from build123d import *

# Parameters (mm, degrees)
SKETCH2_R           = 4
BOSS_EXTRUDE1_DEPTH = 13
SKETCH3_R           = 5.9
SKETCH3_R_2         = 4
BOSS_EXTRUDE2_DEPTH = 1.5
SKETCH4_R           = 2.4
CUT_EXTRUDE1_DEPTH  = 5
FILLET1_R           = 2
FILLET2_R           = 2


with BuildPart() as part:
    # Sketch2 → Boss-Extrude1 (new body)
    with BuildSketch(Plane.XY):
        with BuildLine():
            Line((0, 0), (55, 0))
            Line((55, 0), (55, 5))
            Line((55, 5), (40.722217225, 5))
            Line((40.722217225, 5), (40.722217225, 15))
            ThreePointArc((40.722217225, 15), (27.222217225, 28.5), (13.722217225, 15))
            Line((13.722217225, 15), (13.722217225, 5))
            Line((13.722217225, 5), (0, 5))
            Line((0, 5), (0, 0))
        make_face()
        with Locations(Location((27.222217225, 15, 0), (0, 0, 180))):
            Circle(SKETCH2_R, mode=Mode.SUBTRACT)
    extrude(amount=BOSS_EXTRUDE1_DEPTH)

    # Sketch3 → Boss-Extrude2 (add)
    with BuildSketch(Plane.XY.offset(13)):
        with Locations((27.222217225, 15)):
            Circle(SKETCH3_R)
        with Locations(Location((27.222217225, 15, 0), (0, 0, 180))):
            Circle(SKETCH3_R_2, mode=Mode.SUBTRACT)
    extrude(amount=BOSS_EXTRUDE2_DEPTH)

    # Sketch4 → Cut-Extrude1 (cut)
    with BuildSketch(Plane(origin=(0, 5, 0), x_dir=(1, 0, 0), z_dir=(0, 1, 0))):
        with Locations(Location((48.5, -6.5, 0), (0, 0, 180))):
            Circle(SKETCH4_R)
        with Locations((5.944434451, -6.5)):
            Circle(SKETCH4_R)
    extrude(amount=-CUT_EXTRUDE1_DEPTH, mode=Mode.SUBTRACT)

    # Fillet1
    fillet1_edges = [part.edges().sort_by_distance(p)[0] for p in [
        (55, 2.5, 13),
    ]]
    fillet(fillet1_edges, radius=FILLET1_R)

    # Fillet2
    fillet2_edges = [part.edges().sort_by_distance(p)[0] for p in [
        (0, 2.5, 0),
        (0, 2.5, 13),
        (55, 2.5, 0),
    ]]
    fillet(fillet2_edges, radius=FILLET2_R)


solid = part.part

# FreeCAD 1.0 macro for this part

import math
import FreeCAD as App
import Part
import Sketcher


def edges_at(feature, points):
    """Names of the edges that pass closest to the given points."""
    edges = feature.Shape.Edges
    near = lambda p: min(range(len(edges)), key=lambda i: edges[i].distToShape(Part.Vertex(*p))[0])
    return sorted({f"Edge{near(p) + 1}" for p in points})

doc = App.newDocument("Part")
body = doc.addObject("PartDesign::Body", "Body")

# Sketch on XY plane
sketch1 = doc.addObject("Sketcher::SketchObject", "Sketch")
body.addObject(sketch1)
sketch1.AttachmentSupport = (doc.XY_Plane, [""])
sketch1.MapMode = "FlatFace"
sketch1.addGeometry([
    Part.LineSegment(App.Vector(0, 0, 0), App.Vector(55, 0, 0)),  # 0
    Part.LineSegment(App.Vector(55, 0, 0), App.Vector(55, 5, 0)),  # 1
    Part.LineSegment(App.Vector(55, 5, 0), App.Vector(40.7, 5, 0)),  # 2
    Part.LineSegment(App.Vector(40.7, 5, 0), App.Vector(40.7, 15, 0)),  # 3
    Part.ArcOfCircle(Part.Circle(App.Vector(27.2, 15, 0), App.Vector(0, 0, 1), 13.5), math.radians(0), math.radians(180)),  # 4
    Part.LineSegment(App.Vector(13.7, 15, 0), App.Vector(13.7, 5, 0)),  # 5
    Part.LineSegment(App.Vector(13.7, 5, 0), App.Vector(0, 5, 0)),  # 6
    Part.LineSegment(App.Vector(0, 5, 0), App.Vector(0, 0, 0)),  # 7
    Part.Circle(App.Vector(27.2, 15, 0), App.Vector(0, 0, 1), 4),  # 8
], False)
sketch1.addConstraint([
    Sketcher.Constraint("Coincident", 0, 2, 1, 1),
    Sketcher.Constraint("Coincident", 1, 2, 2, 1),
    Sketcher.Constraint("Coincident", 2, 2, 3, 1),
    Sketcher.Constraint("Tangent", 3, 2, 4, 1),
    Sketcher.Constraint("Tangent", 4, 2, 5, 1),
    Sketcher.Constraint("Coincident", 5, 2, 6, 1),
    Sketcher.Constraint("Coincident", 6, 2, 7, 1),
    Sketcher.Constraint("Coincident", 7, 2, 0, 1),
    Sketcher.Constraint("Horizontal", 0),
    Sketcher.Constraint("Vertical", 1),
    Sketcher.Constraint("Horizontal", 2),
    Sketcher.Constraint("Vertical", 3),
    Sketcher.Constraint("Vertical", 5),
    Sketcher.Constraint("Horizontal", 6),
    Sketcher.Constraint("Vertical", 7),
    Sketcher.Constraint("Coincident", 7, 2, -1, 1),
    Sketcher.Constraint("Coincident", 8, 3, 4, 3),
    Sketcher.Constraint("Horizontal", 2, 2, 5, 2),
    Sketcher.Constraint("Diameter", 8, 8.0),
    Sketcher.Constraint("Radius", 4, 13.5),
    Sketcher.Constraint("DistanceX", 0, 1, 0, 2, 55.0),
    Sketcher.Constraint("DistanceY", 1, 1, 1, 2, 5.0),
    Sketcher.Constraint("DistanceY", 3, 1, 3, 2, 10.0),
    Sketcher.Constraint("DistanceX", 2, 2, 2, 1, 14.277783),
])
pad1 = doc.addObject("PartDesign::Pad", "Pad")
body.addObject(pad1)
pad1.Profile = sketch1
pad1.Length = 13

# Sketch on XY plane
sketch2 = doc.addObject("Sketcher::SketchObject", "Sketch001")
body.addObject(sketch2)
sketch2.AttachmentSupport = (doc.XY_Plane, [""])
sketch2.MapMode = "FlatFace"
sketch2.AttachmentOffset = App.Placement(App.Vector(0, 0, 13), App.Rotation())
sketch2.addGeometry([
    Part.Circle(App.Vector(27.2, 15, 0), App.Vector(0, 0, 1), 5.9),
    Part.Circle(App.Vector(27.2, 15, 0), App.Vector(0, 0, 1), 4),
], False)
sketch2.addConstraint([
    Sketcher.Constraint("Coincident", 1, 3, 0, 3),
    Sketcher.Constraint("Diameter", 1, 8.0),
    Sketcher.Constraint("Diameter", 0, 11.8),
    Sketcher.Constraint("DistanceY", -1, 1, 0, 3, 15.0),
    Sketcher.Constraint("DistanceX", -1, 1, 0, 3, 27.222217),
])
pad2 = doc.addObject("PartDesign::Pad", "Pad001")
body.addObject(pad2)
pad2.Profile = sketch2
pad2.Length = 1.5

# Sketch on XZ plane
sketch3 = doc.addObject("Sketcher::SketchObject", "Sketch002")
body.addObject(sketch3)
sketch3.AttachmentSupport = (doc.XZ_Plane, [""])
sketch3.MapMode = "FlatFace"
sketch3.AttachmentOffset = App.Placement(App.Vector(0, 0, -5), App.Rotation())
sketch3.addGeometry([
    Part.Circle(App.Vector(48.5, 6.5, 0), App.Vector(0, 0, 1), 2.4),
    Part.Circle(App.Vector(5.9, 6.5, 0), App.Vector(0, 0, 1), 2.4),
], False)
sketch3.addConstraint([
    Sketcher.Constraint("Equal", 0, 1),
    Sketcher.Constraint("Horizontal", 0, 3, 1, 3),
    Sketcher.Constraint("Diameter", 0, 4.8),
    Sketcher.Constraint("DistanceX", -1, 1, 0, 3, 48.5),
    Sketcher.Constraint("DistanceY", -1, 1, 0, 3, 6.5),
    Sketcher.Constraint("DistanceX", -1, 1, 1, 3, 5.944434),
])
pocket1 = doc.addObject("PartDesign::Pocket", "Pocket")
body.addObject(pocket1)
pocket1.Profile = sketch3
pocket1.Length = 5
pocket1.Reversed = True
doc.recompute()

fillet = doc.addObject("PartDesign::Fillet", "Fillet")
body.addObject(fillet)
fillet.Base = (pocket1, edges_at(pocket1, [(55, 2.5, 13)]))
fillet.Radius = 2
doc.recompute()

fillet2 = doc.addObject("PartDesign::Fillet", "Fillet001")
body.addObject(fillet2)
fillet2.Base = (fillet, edges_at(fillet, [(0, 2.5, 0), (0, 2.5, 13), (55, 2.5, 0)]))
fillet2.Radius = 2

doc.recompute()
